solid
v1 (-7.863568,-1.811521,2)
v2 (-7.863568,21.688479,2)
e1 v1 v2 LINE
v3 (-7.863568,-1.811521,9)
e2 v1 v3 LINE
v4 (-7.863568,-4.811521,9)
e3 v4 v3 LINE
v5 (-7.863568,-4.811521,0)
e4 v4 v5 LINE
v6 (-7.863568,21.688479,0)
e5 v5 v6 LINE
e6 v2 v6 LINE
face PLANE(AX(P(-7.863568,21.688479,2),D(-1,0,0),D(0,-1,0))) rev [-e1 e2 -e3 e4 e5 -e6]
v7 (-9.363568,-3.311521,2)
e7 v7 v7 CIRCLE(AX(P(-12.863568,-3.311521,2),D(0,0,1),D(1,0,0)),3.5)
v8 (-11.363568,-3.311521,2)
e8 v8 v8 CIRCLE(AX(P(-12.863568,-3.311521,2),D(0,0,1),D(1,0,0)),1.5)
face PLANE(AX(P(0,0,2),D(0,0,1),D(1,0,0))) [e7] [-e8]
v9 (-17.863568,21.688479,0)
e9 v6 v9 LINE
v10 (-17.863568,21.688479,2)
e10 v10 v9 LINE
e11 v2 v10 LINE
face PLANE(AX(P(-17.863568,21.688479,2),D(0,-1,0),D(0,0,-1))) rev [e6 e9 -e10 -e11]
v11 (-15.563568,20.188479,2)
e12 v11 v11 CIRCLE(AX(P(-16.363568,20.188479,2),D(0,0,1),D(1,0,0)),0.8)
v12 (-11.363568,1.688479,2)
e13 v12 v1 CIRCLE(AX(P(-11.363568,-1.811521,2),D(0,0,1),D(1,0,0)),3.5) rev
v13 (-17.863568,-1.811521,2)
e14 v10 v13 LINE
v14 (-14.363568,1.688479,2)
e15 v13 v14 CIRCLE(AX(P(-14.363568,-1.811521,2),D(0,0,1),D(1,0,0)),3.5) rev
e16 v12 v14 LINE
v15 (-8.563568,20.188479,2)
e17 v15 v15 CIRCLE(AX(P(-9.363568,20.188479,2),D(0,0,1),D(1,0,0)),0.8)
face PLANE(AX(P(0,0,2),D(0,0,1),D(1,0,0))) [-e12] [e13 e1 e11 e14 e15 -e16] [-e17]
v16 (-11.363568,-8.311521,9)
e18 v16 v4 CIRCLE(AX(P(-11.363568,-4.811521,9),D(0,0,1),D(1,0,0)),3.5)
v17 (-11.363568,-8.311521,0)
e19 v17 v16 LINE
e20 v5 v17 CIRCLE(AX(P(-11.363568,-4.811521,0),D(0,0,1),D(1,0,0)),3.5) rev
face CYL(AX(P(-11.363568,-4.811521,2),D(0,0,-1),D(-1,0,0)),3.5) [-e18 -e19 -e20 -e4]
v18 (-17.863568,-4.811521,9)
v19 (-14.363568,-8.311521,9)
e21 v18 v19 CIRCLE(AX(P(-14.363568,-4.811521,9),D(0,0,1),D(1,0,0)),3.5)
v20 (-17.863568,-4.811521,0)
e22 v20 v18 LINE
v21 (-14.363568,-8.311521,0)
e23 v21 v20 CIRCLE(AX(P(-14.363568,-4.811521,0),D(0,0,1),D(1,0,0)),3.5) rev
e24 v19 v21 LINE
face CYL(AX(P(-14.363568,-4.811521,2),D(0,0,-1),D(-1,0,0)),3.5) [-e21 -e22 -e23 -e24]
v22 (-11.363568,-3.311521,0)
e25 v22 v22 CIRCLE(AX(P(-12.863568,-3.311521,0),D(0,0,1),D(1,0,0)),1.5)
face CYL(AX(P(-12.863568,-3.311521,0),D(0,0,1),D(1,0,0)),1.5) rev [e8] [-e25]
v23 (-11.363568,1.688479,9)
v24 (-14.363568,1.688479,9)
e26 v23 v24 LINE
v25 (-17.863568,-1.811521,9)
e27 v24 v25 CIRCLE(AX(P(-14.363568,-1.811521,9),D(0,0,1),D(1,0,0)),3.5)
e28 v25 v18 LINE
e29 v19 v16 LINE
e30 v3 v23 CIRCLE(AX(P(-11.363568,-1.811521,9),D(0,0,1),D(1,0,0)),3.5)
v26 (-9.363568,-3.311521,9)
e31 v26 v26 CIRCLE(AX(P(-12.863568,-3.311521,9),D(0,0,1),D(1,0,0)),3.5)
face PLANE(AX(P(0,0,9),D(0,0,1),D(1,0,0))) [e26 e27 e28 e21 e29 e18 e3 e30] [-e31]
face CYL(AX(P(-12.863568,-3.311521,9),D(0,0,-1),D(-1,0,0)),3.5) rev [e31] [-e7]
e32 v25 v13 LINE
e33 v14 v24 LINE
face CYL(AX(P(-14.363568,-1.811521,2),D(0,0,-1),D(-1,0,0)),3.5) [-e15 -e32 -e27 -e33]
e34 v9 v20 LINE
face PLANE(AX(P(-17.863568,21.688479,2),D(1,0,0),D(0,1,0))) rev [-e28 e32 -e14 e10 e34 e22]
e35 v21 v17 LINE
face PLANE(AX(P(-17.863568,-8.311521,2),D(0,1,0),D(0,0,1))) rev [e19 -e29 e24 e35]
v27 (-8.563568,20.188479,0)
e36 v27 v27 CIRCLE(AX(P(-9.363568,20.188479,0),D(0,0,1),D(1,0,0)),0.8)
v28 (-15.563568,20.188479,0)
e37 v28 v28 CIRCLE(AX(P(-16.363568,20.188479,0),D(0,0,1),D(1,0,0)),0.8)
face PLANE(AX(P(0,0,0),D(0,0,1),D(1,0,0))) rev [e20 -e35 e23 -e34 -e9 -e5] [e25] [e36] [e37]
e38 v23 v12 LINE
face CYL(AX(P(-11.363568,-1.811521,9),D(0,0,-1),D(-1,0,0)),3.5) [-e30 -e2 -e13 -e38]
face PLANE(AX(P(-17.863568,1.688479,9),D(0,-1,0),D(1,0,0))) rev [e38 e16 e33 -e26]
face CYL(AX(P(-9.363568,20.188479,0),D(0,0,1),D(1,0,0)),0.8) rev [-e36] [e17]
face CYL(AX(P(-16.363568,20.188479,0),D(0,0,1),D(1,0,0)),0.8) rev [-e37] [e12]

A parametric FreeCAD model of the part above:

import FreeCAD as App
import Part
import Sketcher

V = App.Vector
Q = App.Units.Quantity


def edges_at(feature, points):
    """Names of the edges that pass closest to the given points."""
    edges = feature.Shape.Edges
    near = lambda p: min(range(len(edges)), key=lambda i: edges[i].distToShape(Part.Vertex(*p))[0])
    return sorted({f"Edge{near(p) + 1}" for p in points})

doc = App.newDocument("Part")
body = doc.addObject("PartDesign::Body", "Body")

# Sketch on XY plane
sketch1 = body.newObject("Sketcher::SketchObject", "Sketch")
sketch1.AttachmentSupport = (doc.getObject("XY_Plane"), [""])
sketch1.MapMode = "FlatFace"
sketch1.addGeometry([
    Part.LineSegment(V(-18, 22, 0), V(-18, -8, 0)),
    Part.LineSegment(V(-18, -8, 0), V(-8, -8, 0)),
    Part.LineSegment(V(-8, -8, 0), V(-8, 22, 0)),
    Part.LineSegment(V(-8, 22, 0), V(-18, 22, 0)),
], False)
sketch1.addConstraint([
    Sketcher.Constraint("Coincident", 0, 2, 1, 1),
    Sketcher.Constraint("Coincident", 1, 2, 2, 1),
    Sketcher.Constraint("Coincident", 2, 2, 3, 1),
    Sketcher.Constraint("Coincident", 3, 2, 0, 1),
    Sketcher.Constraint("Vertical", 0),
    Sketcher.Constraint("Horizontal", 1),
    Sketcher.Constraint("Vertical", 2),
    Sketcher.Constraint("Horizontal", 3),
    Sketcher.Constraint("DistanceX", 1, 1, 1, 2, Q("10 mm")),
    Sketcher.Constraint("DistanceY", 0, 2, 0, 1, Q("30 mm")),
    Sketcher.Constraint("DistanceY", 0, 2, -1, 1, Q("8.311521 mm")),
    Sketcher.Constraint("DistanceX", 0, 2, -1, 1, Q("17.863568 mm")),
])
pad1 = body.newObject("PartDesign::Pad", "Pad")
pad1.Profile = sketch1
pad1.Length = 2

# Sketch on XY plane
sketch2 = body.newObject("Sketcher::SketchObject", "Sketch001")
sketch2.AttachmentSupport = (doc.getObject("XY_Plane"), [""])
sketch2.MapMode = "FlatFace"
sketch2.AttachmentOffset = App.Placement(V(0, 0, 2), App.Rotation())
sketch2.addGeometry([
    Part.LineSegment(V(-17.9, 1.7, 0), V(-17.9, -8.3, 0)),  # 0
    Part.LineSegment(V(-17.9, -8.3, 0), V(-7.9, -8.3, 0)),  # 1
    Part.LineSegment(V(-7.9, -8.3, 0), V(-7.9, 1.7, 0)),  # 2
    Part.LineSegment(V(-7.9, 1.7, 0), V(-17.9, 1.7, 0)),  # 3
    Part.Circle(V(-12.9, -3.3, 0), V(0, 0, 1), 3.5),  # 4
], False)
sketch2.addConstraint([
    Sketcher.Constraint("Coincident", 0, 2, 1, 1),
    Sketcher.Constraint("Coincident", 1, 2, 2, 1),
    Sketcher.Constraint("Coincident", 2, 2, 3, 1),
    Sketcher.Constraint("Coincident", 3, 2, 0, 1),
    Sketcher.Constraint("Vertical", 0),
    Sketcher.Constraint("Horizontal", 1),
    Sketcher.Constraint("Vertical", 2),
    Sketcher.Constraint("Horizontal", 3),
    Sketcher.Constraint("Equal", 3, 0),
    Sketcher.Constraint("Diameter", 4, Q("7 mm")),
    Sketcher.Constraint("DistanceX", 1, 1, 1, 2, Q("10 mm")),
    Sketcher.Constraint("DistanceX", 0, 2, 4, 3, Q("5 mm")),
    Sketcher.Constraint("DistanceY", 0, 2, 4, 3, Q("5 mm")),
    Sketcher.Constraint("DistanceY", 4, 3, -1, 1, Q("3.311521 mm")),
    Sketcher.Constraint("DistanceX", 4, 3, -1, 1, Q("12.863568 mm")),
])
pad2 = body.newObject("PartDesign::Pad", "Pad001")
pad2.Profile = sketch2
pad2.Length = 7

# Sketch on XY plane
sketch3 = body.newObject("Sketcher::SketchObject", "Sketch002")
sketch3.AttachmentSupport = (doc.getObject("XY_Plane"), [""])
sketch3.MapMode = "FlatFace"
sketch3.AttachmentOffset = App.Placement(V(0, 0, 2), App.Rotation())
sketch3.addGeometry([
    Part.Circle(V(-16.4, 20.2, 0), V(0, 0, 1), 0.8),
    Part.Circle(V(-9.4, 20.2, 0), V(0, 0, 1), 0.8),
], False)
sketch3.addConstraint([
    Sketcher.Constraint("Equal", 0, 1),
    Sketcher.Constraint("Horizontal", 0, 3, 1, 3),
    Sketcher.Constraint("Diameter", 0, Q("1.6 mm")),
    Sketcher.Constraint("DistanceX", 0, 3, 1, 3, Q("7 mm")),
    Sketcher.Constraint("DistanceY", -1, 1, 0, 3, Q("20.188479 mm")),
    Sketcher.Constraint("DistanceX", 0, 3, -1, 1, Q("16.363568 mm")),
])
pocket1 = body.newObject("PartDesign::Pocket", "Pocket")
pocket1.Profile = sketch3
pocket1.Length = 2
doc.recompute()

fillet = body.newObject("PartDesign::Fillet", "Fillet")
fillet.Base = (pocket1, edges_at(pocket1, [
    (-7.864, -8.312, 4.5),
    (-17.864, -8.312, 4.5),
    (-17.864, 1.688, 5.5),
    (-7.864, 1.688, 5.5),
]))
fillet.Radius = 3.5

# Sketch on XY plane
sketch4 = body.newObject("Sketcher::SketchObject", "Sketch003")
sketch4.AttachmentSupport = (doc.getObject("XY_Plane"), [""])
sketch4.MapMode = "FlatFace"
sketch4.AttachmentOffset = App.Placement(V(0, 0, 2), App.Rotation())
sketch4.addGeometry(Part.Circle(V(-12.9, -3.3, 0), V(0, 0, 1), 1.5), False)
sketch4.addConstraint([
    Sketcher.Constraint("Diameter", 0, Q("3 mm")),
    Sketcher.Constraint("DistanceY", 0, 3, -1, 1, Q("3.311521 mm")),
    Sketcher.Constraint("DistanceX", 0, 3, -1, 1, Q("12.863568 mm")),
])
pocket2 = body.newObject("PartDesign::Pocket", "Pocket001")
pocket2.Profile = sketch4
pocket2.Length = 2

doc.recompute()
